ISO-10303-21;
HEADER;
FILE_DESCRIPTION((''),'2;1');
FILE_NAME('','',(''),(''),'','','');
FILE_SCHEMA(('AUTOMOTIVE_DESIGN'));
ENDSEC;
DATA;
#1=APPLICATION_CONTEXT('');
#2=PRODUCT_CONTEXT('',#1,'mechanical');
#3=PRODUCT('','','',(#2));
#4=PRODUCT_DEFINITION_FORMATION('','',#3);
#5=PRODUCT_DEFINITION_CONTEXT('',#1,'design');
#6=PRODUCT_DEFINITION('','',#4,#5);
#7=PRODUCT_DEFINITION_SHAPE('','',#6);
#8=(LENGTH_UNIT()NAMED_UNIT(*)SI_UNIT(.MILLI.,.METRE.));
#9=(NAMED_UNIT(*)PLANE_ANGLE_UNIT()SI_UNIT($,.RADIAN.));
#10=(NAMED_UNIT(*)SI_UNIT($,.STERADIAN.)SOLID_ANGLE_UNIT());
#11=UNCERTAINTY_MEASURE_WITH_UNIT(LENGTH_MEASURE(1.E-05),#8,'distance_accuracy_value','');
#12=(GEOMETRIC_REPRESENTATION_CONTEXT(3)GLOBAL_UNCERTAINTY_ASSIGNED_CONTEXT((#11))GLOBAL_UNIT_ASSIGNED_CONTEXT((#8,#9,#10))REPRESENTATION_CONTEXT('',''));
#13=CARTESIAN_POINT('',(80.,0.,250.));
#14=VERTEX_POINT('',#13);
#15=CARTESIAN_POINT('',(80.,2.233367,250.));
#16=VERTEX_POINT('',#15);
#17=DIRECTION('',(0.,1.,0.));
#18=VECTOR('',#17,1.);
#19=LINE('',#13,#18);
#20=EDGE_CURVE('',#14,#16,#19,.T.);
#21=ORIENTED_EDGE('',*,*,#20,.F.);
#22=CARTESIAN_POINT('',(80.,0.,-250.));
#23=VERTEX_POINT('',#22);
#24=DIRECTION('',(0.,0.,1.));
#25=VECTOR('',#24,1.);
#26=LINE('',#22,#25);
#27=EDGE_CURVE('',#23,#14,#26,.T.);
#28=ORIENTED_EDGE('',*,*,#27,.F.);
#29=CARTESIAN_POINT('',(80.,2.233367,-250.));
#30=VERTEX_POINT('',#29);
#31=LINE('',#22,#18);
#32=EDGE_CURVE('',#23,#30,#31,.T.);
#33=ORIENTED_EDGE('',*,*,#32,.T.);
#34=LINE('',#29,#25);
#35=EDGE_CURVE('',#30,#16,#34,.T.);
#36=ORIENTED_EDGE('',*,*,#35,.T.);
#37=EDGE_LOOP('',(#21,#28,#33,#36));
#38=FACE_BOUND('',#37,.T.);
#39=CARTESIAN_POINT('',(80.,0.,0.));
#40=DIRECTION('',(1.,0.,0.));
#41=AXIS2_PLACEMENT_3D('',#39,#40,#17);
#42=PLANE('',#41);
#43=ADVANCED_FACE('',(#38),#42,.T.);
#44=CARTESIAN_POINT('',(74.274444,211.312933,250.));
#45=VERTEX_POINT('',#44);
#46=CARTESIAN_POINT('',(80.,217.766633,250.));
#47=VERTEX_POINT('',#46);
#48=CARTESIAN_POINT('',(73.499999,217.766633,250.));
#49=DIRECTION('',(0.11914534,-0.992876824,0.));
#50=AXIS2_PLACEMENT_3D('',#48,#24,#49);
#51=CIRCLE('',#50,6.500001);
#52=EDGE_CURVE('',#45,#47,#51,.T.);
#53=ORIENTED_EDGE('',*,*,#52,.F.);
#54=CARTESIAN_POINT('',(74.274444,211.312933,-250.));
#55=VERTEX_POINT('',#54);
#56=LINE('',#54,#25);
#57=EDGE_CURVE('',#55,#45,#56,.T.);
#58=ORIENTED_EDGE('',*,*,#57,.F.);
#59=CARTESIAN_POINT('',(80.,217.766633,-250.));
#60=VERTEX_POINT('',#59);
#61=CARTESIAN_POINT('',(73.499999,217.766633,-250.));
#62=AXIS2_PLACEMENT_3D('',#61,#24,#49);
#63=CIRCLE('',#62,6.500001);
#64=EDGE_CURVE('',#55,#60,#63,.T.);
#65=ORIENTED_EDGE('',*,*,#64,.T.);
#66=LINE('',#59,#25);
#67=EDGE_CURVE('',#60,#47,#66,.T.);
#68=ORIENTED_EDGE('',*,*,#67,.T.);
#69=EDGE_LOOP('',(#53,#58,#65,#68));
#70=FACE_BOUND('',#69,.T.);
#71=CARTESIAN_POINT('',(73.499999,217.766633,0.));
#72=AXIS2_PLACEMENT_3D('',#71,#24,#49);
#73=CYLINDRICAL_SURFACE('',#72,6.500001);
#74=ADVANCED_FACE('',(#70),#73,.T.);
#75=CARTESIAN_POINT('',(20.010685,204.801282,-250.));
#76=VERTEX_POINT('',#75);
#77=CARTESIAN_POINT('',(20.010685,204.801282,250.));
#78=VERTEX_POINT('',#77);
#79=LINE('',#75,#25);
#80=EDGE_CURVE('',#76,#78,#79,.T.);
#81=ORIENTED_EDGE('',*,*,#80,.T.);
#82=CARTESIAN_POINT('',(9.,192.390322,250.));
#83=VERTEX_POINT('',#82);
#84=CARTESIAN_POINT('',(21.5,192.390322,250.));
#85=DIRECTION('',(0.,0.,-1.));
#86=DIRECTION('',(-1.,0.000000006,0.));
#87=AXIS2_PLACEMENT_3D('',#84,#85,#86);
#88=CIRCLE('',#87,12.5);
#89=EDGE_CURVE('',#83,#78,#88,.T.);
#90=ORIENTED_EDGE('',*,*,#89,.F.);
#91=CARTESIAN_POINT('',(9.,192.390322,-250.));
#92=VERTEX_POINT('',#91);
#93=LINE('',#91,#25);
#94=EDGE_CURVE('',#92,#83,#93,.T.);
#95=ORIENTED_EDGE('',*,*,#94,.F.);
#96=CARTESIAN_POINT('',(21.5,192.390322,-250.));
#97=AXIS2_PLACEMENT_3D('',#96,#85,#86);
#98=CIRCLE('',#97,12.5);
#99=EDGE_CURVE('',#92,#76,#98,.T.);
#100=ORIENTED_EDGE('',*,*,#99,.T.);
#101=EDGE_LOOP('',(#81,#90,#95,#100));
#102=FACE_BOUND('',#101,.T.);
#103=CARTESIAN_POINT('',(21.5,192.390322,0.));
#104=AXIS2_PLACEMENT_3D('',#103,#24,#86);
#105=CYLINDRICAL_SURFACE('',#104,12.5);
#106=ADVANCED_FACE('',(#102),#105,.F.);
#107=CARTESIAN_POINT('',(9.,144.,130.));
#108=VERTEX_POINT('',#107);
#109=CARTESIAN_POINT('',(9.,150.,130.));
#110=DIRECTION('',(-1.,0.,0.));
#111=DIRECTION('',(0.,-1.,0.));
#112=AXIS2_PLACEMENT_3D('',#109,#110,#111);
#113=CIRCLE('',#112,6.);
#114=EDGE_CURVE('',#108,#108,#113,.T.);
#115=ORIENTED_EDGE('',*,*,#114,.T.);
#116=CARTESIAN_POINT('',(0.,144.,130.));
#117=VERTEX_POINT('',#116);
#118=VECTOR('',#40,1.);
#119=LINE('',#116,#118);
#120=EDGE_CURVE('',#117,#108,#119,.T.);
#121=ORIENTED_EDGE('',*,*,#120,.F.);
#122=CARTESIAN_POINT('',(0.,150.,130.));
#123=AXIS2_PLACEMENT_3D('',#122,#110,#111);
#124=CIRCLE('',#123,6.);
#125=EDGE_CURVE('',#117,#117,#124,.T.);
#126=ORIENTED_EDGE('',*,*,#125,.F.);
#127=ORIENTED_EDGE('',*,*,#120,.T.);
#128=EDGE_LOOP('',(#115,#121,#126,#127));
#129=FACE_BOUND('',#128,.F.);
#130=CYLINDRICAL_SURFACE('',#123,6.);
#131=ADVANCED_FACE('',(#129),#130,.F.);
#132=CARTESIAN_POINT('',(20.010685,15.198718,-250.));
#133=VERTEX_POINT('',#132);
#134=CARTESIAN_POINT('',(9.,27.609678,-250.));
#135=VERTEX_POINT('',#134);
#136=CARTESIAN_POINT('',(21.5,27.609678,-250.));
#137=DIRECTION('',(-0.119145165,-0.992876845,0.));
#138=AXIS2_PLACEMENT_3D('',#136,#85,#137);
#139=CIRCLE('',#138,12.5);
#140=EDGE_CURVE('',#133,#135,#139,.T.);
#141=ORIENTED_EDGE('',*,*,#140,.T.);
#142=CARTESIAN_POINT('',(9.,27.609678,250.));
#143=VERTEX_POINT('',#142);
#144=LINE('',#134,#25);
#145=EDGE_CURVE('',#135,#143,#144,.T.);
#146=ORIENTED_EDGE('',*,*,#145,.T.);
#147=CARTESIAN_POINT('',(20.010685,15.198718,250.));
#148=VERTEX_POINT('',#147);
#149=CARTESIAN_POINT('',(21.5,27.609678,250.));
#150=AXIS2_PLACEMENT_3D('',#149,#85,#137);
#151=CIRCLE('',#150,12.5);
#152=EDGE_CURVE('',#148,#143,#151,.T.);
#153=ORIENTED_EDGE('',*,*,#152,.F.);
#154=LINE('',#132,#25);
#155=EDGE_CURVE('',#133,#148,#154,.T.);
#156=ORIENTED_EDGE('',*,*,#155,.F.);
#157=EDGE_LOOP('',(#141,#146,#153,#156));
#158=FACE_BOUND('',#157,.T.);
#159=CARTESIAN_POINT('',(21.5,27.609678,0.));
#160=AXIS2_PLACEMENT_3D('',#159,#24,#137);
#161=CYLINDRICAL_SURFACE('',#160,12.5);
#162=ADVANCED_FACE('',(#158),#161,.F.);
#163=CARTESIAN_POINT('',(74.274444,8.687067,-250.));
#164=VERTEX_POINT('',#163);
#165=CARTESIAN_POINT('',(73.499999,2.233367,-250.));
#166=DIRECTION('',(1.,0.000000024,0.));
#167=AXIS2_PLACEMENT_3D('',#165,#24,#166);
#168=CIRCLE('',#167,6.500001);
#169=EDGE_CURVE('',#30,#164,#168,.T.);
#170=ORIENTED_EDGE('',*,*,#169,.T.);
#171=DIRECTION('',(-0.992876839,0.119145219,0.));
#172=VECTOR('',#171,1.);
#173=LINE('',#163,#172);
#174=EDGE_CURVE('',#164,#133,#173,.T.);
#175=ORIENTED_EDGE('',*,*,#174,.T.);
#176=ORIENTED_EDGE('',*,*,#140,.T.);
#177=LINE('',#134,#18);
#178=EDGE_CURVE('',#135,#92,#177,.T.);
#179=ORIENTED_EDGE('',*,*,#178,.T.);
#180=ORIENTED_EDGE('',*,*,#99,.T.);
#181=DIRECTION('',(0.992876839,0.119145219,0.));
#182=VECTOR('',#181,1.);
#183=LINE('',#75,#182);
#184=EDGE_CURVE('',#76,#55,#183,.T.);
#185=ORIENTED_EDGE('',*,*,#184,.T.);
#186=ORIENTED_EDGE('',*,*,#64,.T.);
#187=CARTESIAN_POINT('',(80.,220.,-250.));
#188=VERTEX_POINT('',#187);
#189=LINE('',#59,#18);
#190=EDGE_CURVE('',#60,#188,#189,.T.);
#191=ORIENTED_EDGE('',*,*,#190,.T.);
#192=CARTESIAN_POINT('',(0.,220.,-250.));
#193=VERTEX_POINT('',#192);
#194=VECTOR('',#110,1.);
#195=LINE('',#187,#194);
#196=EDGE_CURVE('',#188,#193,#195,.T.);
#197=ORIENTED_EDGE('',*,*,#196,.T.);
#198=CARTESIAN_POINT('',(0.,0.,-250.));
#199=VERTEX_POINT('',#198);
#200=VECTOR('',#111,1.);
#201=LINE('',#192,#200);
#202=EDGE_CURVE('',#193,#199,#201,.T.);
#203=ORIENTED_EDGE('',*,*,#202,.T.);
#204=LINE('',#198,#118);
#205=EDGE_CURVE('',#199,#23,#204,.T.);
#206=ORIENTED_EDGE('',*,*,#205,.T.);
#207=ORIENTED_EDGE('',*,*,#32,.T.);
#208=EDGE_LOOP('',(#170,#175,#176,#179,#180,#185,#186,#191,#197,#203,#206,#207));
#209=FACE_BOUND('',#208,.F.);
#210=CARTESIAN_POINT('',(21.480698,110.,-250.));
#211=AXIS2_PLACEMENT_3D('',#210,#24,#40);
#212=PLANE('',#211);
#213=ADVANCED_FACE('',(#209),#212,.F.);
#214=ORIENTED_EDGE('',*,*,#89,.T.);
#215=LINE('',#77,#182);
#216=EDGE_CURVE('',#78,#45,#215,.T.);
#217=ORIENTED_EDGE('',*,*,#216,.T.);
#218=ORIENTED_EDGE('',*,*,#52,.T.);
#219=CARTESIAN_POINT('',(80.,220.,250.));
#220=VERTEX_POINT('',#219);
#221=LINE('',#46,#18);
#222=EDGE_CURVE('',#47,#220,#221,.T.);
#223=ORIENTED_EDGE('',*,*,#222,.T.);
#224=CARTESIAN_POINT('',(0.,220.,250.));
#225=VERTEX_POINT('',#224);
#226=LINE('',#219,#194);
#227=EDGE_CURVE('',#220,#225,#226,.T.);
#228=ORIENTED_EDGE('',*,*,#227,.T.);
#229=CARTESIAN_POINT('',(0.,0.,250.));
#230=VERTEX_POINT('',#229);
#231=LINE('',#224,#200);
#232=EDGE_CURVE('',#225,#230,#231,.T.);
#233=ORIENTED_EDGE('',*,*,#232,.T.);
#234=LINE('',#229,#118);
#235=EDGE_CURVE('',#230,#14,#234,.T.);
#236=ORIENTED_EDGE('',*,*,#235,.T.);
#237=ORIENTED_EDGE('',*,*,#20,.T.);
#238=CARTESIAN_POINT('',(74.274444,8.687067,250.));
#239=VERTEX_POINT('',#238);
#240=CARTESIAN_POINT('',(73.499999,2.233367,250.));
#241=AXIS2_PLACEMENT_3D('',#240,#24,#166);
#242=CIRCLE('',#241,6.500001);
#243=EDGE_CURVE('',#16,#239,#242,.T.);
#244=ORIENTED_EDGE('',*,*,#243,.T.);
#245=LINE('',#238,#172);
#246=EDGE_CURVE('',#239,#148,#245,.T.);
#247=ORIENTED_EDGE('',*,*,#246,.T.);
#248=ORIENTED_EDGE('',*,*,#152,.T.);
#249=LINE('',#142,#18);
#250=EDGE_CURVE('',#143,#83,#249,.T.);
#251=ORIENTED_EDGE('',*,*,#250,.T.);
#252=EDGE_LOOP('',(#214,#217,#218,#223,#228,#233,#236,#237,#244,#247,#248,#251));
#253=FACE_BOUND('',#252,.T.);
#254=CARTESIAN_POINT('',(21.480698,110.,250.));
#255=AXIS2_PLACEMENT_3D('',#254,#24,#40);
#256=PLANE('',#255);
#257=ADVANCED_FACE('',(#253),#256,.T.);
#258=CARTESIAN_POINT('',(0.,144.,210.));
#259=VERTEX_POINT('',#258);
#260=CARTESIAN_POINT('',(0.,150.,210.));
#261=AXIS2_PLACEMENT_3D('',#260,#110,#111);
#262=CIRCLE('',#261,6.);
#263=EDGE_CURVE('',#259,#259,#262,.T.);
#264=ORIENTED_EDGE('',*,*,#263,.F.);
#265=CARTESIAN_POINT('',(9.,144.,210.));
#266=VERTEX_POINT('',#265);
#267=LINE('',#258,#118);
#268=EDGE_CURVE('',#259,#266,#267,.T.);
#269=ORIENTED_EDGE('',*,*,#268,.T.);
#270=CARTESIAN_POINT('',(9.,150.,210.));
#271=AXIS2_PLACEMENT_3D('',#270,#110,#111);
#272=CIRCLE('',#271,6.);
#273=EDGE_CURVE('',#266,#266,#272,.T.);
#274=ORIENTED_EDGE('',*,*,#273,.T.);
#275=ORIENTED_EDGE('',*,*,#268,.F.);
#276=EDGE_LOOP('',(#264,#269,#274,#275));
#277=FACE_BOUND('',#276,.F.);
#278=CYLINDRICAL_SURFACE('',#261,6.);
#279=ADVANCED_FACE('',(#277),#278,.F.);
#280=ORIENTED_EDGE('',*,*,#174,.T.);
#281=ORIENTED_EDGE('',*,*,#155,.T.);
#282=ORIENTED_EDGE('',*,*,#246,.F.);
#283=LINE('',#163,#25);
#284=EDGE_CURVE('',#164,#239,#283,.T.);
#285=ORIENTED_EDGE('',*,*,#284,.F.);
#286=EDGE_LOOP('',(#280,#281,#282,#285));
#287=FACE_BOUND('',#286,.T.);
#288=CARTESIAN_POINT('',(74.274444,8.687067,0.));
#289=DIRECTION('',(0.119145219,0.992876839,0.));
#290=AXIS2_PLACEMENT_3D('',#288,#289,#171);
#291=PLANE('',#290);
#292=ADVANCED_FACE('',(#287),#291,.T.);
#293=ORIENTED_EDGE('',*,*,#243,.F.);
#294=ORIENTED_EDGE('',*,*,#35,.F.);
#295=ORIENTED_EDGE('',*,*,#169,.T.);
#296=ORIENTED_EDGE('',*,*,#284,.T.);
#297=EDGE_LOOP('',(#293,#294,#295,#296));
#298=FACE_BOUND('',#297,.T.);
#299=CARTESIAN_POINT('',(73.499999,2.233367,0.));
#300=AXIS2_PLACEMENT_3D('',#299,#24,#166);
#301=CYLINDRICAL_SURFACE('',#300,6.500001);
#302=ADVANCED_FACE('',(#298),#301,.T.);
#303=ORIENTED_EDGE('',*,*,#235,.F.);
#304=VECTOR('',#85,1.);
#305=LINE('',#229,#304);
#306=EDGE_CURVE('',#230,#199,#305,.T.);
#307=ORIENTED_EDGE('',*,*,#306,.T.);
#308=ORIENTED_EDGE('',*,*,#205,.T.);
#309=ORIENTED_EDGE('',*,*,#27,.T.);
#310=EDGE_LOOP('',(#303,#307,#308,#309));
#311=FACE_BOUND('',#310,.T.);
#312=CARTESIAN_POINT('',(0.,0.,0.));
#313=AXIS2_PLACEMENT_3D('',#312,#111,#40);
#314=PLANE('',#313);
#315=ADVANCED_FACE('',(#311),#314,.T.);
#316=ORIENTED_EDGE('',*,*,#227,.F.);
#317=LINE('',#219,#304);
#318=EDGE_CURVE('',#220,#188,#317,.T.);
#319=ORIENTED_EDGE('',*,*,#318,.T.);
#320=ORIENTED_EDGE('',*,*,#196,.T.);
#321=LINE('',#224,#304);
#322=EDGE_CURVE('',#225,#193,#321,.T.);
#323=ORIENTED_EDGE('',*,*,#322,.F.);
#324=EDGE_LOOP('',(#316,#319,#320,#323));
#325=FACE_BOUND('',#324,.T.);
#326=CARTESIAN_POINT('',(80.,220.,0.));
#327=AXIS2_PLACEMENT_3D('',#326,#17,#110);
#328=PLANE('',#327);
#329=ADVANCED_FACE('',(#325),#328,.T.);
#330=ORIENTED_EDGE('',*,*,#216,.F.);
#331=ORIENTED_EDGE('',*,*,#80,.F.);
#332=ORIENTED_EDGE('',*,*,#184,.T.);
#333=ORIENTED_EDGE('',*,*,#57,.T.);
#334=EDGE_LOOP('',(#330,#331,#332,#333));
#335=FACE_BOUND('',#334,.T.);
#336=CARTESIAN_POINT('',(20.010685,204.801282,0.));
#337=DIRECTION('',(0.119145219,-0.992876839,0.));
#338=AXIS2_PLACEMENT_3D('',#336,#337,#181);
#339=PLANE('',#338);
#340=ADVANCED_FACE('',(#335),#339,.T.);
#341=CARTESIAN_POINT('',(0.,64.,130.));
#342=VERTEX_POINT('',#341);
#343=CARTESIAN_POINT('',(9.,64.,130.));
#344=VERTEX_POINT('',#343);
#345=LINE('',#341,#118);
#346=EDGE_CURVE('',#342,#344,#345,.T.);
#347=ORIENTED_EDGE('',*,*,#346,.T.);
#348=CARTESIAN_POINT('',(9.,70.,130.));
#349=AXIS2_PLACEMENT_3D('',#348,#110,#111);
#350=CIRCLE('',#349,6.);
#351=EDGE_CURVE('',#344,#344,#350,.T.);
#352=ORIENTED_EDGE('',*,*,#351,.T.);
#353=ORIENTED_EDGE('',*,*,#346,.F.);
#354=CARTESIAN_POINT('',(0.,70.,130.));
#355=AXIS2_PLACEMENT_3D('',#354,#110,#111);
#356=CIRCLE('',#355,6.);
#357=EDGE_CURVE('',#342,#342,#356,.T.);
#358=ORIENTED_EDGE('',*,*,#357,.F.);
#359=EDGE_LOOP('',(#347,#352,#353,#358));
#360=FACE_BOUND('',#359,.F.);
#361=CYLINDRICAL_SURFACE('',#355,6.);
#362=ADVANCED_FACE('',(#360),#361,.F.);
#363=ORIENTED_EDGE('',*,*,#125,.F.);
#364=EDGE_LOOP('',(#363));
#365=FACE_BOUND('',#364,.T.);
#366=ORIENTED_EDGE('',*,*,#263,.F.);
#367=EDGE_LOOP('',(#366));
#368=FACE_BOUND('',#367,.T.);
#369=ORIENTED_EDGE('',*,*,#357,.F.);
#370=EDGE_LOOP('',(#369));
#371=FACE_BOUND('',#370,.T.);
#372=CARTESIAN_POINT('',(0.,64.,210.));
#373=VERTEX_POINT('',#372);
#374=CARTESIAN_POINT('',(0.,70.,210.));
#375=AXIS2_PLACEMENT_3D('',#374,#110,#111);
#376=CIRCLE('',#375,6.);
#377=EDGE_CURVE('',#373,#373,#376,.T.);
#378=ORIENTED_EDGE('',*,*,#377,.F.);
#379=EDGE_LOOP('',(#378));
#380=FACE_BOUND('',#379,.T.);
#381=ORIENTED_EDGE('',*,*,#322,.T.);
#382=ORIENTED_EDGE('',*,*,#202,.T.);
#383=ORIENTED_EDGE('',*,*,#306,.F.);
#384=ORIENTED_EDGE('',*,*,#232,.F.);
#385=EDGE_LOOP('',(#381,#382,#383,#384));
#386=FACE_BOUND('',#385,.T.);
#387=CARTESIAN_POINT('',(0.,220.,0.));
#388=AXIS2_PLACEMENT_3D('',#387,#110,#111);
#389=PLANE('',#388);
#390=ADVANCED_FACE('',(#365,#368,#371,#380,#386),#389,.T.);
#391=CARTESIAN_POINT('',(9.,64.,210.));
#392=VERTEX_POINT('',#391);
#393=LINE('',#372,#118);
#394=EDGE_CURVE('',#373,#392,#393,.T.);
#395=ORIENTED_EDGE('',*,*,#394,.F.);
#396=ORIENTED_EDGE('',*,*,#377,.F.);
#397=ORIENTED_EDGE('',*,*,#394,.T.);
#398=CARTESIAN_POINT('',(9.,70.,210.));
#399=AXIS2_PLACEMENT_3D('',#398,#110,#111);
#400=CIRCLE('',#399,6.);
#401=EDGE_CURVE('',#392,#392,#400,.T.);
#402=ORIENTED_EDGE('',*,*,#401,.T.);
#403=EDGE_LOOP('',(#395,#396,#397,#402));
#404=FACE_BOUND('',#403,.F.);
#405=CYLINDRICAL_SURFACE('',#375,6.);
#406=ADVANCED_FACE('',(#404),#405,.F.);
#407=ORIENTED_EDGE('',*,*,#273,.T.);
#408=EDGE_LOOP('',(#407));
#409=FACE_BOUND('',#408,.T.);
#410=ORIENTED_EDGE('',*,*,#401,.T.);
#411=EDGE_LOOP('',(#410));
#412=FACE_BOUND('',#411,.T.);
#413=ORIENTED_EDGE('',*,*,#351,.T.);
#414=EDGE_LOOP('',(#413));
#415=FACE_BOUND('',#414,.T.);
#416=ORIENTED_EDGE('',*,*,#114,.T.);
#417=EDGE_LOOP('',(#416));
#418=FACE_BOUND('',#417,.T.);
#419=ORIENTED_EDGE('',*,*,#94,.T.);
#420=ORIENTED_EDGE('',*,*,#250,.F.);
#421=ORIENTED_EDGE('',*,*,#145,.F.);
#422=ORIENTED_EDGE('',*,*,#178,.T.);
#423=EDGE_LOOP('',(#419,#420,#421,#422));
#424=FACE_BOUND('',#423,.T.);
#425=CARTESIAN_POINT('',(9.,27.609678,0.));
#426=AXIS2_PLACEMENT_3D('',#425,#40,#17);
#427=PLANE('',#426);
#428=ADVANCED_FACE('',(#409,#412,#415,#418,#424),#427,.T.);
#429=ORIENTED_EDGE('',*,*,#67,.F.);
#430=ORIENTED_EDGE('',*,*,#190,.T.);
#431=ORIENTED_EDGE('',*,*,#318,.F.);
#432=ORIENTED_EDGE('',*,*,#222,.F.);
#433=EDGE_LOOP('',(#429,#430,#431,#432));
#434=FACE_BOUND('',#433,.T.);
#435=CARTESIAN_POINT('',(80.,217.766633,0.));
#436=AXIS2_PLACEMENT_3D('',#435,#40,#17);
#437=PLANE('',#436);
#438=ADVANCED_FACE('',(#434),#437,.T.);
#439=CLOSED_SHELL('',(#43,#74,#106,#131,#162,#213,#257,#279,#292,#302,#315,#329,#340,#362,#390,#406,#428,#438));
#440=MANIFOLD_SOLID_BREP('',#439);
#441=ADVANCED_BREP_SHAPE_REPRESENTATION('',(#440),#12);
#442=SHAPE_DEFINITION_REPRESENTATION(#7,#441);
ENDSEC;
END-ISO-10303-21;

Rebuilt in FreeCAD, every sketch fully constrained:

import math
import FreeCAD as App
import Part
import Sketcher
from FreeCAD import Vector

doc = App.newDocument("Part")
params = doc.addObject("Spreadsheet::Sheet", "Params")
for row, (alias, value) in enumerate([
    ("sketch1_radius", "6.500001 mm"),
    ("sketch1_radius2", "12.5 mm"),
    ("sketch1_radius3", "12.5 mm"),
    ("sketch1_radius4", "6.500001 mm"),
    ("sketch1_width", "80 mm"),
    ("pad1_length", "500 mm"),
    ("sketch2_diameter", "12 mm"),
], start=1):
    params.set(f"A{row}", alias)
    params.set(f"B{row}", "=" + value)
    params.setAlias(f"B{row}", alias)

body = doc.addObject("PartDesign::Body", "Body")

# Sketch on XY plane
sketch1 = body.newObject("Sketcher::SketchObject", "Sketch")
sketch1.AttachmentSupport = (doc.getObject("XY_Plane"), [""])
sketch1.MapMode = "FlatFace"
sketch1.addGeometry([
    Part.LineSegment(Vector(0, 0, 0), Vector(80, 0, 0)),  # 0
    Part.LineSegment(Vector(80, 0, 0), Vector(80, 2.233367, 0)),  # 1
    Part.ArcOfCircle(Part.Circle(Vector(73.499999, 2.233367, 0), Vector(0, 0, 1), 6.500001), math.radians(0.000001), math.radians(83.15722)),  # 2
    Part.LineSegment(Vector(74.274444, 8.687067, 0), Vector(20.010685, 15.198718, 0)),  # 3
    Part.ArcOfCircle(Part.Circle(Vector(21.5, 27.609678, 0), Vector(0, 0, 1), 12.5), math.radians(-180), math.radians(-96.84277)),  # 4
    Part.LineSegment(Vector(9, 27.609678, 0), Vector(9, 192.390322, 0)),  # 5
    Part.ArcOfCircle(Part.Circle(Vector(21.5, 192.390322, 0), Vector(0, 0, 1), 12.5), math.radians(96.84277), math.radians(180)),  # 6
    Part.LineSegment(Vector(20.010685, 204.801282, 0), Vector(74.274444, 211.312933, 0)),  # 7
    Part.ArcOfCircle(Part.Circle(Vector(73.499999, 217.766633, 0), Vector(0, 0, 1), 6.500001), math.radians(-83.15722), math.radians(-0.000001)),  # 8
    Part.LineSegment(Vector(80, 217.766633, 0), Vector(80, 220, 0)),  # 9
    Part.LineSegment(Vector(80, 220, 0), Vector(0, 220, 0)),  # 10
    Part.LineSegment(Vector(0, 220, 0), Vector(0, 0, 0)),  # 11
], False)
sketch1.addConstraint([
    Sketcher.Constraint("Coincident", 0, 2, 1, 1),
    Sketcher.Constraint("Coincident", 1, 2, 2, 1),
    Sketcher.Constraint("Coincident", 2, 2, 3, 1),
    Sketcher.Constraint("Coincident", 3, 2, 4, 2),
    Sketcher.Constraint("Coincident", 4, 1, 5, 1),
    Sketcher.Constraint("Coincident", 5, 2, 6, 2),
    Sketcher.Constraint("Coincident", 6, 1, 7, 1),
    Sketcher.Constraint("Coincident", 7, 2, 8, 1),
    Sketcher.Constraint("Coincident", 8, 2, 9, 1),
    Sketcher.Constraint("Coincident", 9, 2, 10, 1),
    Sketcher.Constraint("Coincident", 10, 2, 11, 1),
    Sketcher.Constraint("Coincident", 11, 2, 0, 1),
    Sketcher.Constraint("Horizontal", 0),
    Sketcher.Constraint("Vertical", 1),
    Sketcher.Constraint("Vertical", 5),
    Sketcher.Constraint("Vertical", 9),
    Sketcher.Constraint("Horizontal", 10),
    Sketcher.Constraint("Vertical", 11),
    Sketcher.Constraint("Coincident", 11, 2, -1, 1),
    Sketcher.Constraint("Radius", 2, 6.500001),
    Sketcher.Constraint("Radius", 4, 12.5),
    Sketcher.Constraint("Radius", 6, 12.5),
    Sketcher.Constraint("Radius", 8, 6.500001),
    Sketcher.Constraint("DistanceX", 0, 1, 0, 2, 80.0),
    Sketcher.Constraint("DistanceX", 10, 2, 10, 1, 80.0),
    Sketcher.Constraint("DistanceY", 11, 2, 11, 1, 220.0),
    Sketcher.Constraint("DistanceX", -1, 1, 4, 1, 9.0),
    Sketcher.Constraint("DistanceY", 2, 3, 2, 2, 6.4537),
    Sketcher.Constraint("DistanceY", 1, 2, 2, 2, 6.4537),
    Sketcher.Constraint("DistanceY", 7, 2, 8, 3, 6.4537),
    Sketcher.Constraint("DistanceY", 7, 2, 8, 2, 6.4537),
    Sketcher.Constraint("Distance", 3, 54.653062),
    Sketcher.Constraint("Distance", 7, 54.653062),
    Sketcher.Constraint("DistanceY", 1, 1, 1, 2, 2.233367),
    Sketcher.Constraint("DistanceY", 5, 1, 5, 2, 164.780644),
    Sketcher.Constraint("DistanceY", 9, 1, 9, 2, 2.233367),
    Sketcher.Constraint("DistanceY", -1, 1, 4, 3, 27.609678),
    Sketcher.Constraint("DistanceY", -1, 1, 6, 3, 192.390322),
    Sketcher.Constraint("DistanceY", -1, 1, 5, 2, 192.390322),
])
sketch1.setExpression("Constraints[19]", "Params.sketch1_radius")
sketch1.setExpression("Constraints[20]", "Params.sketch1_radius2")
sketch1.setExpression("Constraints[21]", "Params.sketch1_radius3")
sketch1.setExpression("Constraints[22]", "Params.sketch1_radius4")
sketch1.setExpression("Constraints[23]", "Params.sketch1_width")
pad1 = body.newObject("PartDesign::Pad", "Pad")
pad1.Profile = sketch1
pad1.setExpression("Length", "Params.pad1_length")
pad1.Midplane = True

# Sketch on YZ plane
sketch2 = body.newObject("Sketcher::SketchObject", "Sketch001")
sketch2.AttachmentSupport = (doc.getObject("YZ_Plane"), [""])
sketch2.MapMode = "FlatFace"
sketch2.addGeometry([
    Part.Circle(Vector(70, 210, 0), Vector(0, 0, 1), 6),
    Part.Circle(Vector(150, 210, 0), Vector(0, 0, 1), 6),
    Part.Circle(Vector(70, 130, 0), Vector(0, 0, 1), 6),
    Part.Circle(Vector(150, 130, 0), Vector(0, 0, 1), 6),
], False)
sketch2.addConstraint([
    Sketcher.Constraint("Equal", 0, 1),
    Sketcher.Constraint("Equal", 1, 2),
    Sketcher.Constraint("Equal", 2, 3),
    Sketcher.Constraint("Horizontal", 0, 3, 1, 3),
    Sketcher.Constraint("Horizontal", 2, 3, 3, 3),
    Sketcher.Constraint("Vertical", 0, 3, 2, 3),
    Sketcher.Constraint("Vertical", 1, 3, 3, 3),
    Sketcher.Constraint("Diameter", 0, 12.0),
    Sketcher.Constraint("DistanceX", -1, 1, 0, 3, 70.0),
    Sketcher.Constraint("DistanceY", -1, 1, 0, 3, 210.0),
    Sketcher.Constraint("DistanceX", -1, 1, 1, 3, 150.0),
    Sketcher.Constraint("DistanceY", -1, 1, 2, 3, 130.0),
])
sketch2.setExpression("Constraints[7]", "Params.sketch2_diameter")
pocket1 = body.newObject("PartDesign::Pocket", "Pocket")
pocket1.Profile = sketch2
pocket1.Type = "ThroughAll"
pocket1.Reversed = True

doc.recompute()
